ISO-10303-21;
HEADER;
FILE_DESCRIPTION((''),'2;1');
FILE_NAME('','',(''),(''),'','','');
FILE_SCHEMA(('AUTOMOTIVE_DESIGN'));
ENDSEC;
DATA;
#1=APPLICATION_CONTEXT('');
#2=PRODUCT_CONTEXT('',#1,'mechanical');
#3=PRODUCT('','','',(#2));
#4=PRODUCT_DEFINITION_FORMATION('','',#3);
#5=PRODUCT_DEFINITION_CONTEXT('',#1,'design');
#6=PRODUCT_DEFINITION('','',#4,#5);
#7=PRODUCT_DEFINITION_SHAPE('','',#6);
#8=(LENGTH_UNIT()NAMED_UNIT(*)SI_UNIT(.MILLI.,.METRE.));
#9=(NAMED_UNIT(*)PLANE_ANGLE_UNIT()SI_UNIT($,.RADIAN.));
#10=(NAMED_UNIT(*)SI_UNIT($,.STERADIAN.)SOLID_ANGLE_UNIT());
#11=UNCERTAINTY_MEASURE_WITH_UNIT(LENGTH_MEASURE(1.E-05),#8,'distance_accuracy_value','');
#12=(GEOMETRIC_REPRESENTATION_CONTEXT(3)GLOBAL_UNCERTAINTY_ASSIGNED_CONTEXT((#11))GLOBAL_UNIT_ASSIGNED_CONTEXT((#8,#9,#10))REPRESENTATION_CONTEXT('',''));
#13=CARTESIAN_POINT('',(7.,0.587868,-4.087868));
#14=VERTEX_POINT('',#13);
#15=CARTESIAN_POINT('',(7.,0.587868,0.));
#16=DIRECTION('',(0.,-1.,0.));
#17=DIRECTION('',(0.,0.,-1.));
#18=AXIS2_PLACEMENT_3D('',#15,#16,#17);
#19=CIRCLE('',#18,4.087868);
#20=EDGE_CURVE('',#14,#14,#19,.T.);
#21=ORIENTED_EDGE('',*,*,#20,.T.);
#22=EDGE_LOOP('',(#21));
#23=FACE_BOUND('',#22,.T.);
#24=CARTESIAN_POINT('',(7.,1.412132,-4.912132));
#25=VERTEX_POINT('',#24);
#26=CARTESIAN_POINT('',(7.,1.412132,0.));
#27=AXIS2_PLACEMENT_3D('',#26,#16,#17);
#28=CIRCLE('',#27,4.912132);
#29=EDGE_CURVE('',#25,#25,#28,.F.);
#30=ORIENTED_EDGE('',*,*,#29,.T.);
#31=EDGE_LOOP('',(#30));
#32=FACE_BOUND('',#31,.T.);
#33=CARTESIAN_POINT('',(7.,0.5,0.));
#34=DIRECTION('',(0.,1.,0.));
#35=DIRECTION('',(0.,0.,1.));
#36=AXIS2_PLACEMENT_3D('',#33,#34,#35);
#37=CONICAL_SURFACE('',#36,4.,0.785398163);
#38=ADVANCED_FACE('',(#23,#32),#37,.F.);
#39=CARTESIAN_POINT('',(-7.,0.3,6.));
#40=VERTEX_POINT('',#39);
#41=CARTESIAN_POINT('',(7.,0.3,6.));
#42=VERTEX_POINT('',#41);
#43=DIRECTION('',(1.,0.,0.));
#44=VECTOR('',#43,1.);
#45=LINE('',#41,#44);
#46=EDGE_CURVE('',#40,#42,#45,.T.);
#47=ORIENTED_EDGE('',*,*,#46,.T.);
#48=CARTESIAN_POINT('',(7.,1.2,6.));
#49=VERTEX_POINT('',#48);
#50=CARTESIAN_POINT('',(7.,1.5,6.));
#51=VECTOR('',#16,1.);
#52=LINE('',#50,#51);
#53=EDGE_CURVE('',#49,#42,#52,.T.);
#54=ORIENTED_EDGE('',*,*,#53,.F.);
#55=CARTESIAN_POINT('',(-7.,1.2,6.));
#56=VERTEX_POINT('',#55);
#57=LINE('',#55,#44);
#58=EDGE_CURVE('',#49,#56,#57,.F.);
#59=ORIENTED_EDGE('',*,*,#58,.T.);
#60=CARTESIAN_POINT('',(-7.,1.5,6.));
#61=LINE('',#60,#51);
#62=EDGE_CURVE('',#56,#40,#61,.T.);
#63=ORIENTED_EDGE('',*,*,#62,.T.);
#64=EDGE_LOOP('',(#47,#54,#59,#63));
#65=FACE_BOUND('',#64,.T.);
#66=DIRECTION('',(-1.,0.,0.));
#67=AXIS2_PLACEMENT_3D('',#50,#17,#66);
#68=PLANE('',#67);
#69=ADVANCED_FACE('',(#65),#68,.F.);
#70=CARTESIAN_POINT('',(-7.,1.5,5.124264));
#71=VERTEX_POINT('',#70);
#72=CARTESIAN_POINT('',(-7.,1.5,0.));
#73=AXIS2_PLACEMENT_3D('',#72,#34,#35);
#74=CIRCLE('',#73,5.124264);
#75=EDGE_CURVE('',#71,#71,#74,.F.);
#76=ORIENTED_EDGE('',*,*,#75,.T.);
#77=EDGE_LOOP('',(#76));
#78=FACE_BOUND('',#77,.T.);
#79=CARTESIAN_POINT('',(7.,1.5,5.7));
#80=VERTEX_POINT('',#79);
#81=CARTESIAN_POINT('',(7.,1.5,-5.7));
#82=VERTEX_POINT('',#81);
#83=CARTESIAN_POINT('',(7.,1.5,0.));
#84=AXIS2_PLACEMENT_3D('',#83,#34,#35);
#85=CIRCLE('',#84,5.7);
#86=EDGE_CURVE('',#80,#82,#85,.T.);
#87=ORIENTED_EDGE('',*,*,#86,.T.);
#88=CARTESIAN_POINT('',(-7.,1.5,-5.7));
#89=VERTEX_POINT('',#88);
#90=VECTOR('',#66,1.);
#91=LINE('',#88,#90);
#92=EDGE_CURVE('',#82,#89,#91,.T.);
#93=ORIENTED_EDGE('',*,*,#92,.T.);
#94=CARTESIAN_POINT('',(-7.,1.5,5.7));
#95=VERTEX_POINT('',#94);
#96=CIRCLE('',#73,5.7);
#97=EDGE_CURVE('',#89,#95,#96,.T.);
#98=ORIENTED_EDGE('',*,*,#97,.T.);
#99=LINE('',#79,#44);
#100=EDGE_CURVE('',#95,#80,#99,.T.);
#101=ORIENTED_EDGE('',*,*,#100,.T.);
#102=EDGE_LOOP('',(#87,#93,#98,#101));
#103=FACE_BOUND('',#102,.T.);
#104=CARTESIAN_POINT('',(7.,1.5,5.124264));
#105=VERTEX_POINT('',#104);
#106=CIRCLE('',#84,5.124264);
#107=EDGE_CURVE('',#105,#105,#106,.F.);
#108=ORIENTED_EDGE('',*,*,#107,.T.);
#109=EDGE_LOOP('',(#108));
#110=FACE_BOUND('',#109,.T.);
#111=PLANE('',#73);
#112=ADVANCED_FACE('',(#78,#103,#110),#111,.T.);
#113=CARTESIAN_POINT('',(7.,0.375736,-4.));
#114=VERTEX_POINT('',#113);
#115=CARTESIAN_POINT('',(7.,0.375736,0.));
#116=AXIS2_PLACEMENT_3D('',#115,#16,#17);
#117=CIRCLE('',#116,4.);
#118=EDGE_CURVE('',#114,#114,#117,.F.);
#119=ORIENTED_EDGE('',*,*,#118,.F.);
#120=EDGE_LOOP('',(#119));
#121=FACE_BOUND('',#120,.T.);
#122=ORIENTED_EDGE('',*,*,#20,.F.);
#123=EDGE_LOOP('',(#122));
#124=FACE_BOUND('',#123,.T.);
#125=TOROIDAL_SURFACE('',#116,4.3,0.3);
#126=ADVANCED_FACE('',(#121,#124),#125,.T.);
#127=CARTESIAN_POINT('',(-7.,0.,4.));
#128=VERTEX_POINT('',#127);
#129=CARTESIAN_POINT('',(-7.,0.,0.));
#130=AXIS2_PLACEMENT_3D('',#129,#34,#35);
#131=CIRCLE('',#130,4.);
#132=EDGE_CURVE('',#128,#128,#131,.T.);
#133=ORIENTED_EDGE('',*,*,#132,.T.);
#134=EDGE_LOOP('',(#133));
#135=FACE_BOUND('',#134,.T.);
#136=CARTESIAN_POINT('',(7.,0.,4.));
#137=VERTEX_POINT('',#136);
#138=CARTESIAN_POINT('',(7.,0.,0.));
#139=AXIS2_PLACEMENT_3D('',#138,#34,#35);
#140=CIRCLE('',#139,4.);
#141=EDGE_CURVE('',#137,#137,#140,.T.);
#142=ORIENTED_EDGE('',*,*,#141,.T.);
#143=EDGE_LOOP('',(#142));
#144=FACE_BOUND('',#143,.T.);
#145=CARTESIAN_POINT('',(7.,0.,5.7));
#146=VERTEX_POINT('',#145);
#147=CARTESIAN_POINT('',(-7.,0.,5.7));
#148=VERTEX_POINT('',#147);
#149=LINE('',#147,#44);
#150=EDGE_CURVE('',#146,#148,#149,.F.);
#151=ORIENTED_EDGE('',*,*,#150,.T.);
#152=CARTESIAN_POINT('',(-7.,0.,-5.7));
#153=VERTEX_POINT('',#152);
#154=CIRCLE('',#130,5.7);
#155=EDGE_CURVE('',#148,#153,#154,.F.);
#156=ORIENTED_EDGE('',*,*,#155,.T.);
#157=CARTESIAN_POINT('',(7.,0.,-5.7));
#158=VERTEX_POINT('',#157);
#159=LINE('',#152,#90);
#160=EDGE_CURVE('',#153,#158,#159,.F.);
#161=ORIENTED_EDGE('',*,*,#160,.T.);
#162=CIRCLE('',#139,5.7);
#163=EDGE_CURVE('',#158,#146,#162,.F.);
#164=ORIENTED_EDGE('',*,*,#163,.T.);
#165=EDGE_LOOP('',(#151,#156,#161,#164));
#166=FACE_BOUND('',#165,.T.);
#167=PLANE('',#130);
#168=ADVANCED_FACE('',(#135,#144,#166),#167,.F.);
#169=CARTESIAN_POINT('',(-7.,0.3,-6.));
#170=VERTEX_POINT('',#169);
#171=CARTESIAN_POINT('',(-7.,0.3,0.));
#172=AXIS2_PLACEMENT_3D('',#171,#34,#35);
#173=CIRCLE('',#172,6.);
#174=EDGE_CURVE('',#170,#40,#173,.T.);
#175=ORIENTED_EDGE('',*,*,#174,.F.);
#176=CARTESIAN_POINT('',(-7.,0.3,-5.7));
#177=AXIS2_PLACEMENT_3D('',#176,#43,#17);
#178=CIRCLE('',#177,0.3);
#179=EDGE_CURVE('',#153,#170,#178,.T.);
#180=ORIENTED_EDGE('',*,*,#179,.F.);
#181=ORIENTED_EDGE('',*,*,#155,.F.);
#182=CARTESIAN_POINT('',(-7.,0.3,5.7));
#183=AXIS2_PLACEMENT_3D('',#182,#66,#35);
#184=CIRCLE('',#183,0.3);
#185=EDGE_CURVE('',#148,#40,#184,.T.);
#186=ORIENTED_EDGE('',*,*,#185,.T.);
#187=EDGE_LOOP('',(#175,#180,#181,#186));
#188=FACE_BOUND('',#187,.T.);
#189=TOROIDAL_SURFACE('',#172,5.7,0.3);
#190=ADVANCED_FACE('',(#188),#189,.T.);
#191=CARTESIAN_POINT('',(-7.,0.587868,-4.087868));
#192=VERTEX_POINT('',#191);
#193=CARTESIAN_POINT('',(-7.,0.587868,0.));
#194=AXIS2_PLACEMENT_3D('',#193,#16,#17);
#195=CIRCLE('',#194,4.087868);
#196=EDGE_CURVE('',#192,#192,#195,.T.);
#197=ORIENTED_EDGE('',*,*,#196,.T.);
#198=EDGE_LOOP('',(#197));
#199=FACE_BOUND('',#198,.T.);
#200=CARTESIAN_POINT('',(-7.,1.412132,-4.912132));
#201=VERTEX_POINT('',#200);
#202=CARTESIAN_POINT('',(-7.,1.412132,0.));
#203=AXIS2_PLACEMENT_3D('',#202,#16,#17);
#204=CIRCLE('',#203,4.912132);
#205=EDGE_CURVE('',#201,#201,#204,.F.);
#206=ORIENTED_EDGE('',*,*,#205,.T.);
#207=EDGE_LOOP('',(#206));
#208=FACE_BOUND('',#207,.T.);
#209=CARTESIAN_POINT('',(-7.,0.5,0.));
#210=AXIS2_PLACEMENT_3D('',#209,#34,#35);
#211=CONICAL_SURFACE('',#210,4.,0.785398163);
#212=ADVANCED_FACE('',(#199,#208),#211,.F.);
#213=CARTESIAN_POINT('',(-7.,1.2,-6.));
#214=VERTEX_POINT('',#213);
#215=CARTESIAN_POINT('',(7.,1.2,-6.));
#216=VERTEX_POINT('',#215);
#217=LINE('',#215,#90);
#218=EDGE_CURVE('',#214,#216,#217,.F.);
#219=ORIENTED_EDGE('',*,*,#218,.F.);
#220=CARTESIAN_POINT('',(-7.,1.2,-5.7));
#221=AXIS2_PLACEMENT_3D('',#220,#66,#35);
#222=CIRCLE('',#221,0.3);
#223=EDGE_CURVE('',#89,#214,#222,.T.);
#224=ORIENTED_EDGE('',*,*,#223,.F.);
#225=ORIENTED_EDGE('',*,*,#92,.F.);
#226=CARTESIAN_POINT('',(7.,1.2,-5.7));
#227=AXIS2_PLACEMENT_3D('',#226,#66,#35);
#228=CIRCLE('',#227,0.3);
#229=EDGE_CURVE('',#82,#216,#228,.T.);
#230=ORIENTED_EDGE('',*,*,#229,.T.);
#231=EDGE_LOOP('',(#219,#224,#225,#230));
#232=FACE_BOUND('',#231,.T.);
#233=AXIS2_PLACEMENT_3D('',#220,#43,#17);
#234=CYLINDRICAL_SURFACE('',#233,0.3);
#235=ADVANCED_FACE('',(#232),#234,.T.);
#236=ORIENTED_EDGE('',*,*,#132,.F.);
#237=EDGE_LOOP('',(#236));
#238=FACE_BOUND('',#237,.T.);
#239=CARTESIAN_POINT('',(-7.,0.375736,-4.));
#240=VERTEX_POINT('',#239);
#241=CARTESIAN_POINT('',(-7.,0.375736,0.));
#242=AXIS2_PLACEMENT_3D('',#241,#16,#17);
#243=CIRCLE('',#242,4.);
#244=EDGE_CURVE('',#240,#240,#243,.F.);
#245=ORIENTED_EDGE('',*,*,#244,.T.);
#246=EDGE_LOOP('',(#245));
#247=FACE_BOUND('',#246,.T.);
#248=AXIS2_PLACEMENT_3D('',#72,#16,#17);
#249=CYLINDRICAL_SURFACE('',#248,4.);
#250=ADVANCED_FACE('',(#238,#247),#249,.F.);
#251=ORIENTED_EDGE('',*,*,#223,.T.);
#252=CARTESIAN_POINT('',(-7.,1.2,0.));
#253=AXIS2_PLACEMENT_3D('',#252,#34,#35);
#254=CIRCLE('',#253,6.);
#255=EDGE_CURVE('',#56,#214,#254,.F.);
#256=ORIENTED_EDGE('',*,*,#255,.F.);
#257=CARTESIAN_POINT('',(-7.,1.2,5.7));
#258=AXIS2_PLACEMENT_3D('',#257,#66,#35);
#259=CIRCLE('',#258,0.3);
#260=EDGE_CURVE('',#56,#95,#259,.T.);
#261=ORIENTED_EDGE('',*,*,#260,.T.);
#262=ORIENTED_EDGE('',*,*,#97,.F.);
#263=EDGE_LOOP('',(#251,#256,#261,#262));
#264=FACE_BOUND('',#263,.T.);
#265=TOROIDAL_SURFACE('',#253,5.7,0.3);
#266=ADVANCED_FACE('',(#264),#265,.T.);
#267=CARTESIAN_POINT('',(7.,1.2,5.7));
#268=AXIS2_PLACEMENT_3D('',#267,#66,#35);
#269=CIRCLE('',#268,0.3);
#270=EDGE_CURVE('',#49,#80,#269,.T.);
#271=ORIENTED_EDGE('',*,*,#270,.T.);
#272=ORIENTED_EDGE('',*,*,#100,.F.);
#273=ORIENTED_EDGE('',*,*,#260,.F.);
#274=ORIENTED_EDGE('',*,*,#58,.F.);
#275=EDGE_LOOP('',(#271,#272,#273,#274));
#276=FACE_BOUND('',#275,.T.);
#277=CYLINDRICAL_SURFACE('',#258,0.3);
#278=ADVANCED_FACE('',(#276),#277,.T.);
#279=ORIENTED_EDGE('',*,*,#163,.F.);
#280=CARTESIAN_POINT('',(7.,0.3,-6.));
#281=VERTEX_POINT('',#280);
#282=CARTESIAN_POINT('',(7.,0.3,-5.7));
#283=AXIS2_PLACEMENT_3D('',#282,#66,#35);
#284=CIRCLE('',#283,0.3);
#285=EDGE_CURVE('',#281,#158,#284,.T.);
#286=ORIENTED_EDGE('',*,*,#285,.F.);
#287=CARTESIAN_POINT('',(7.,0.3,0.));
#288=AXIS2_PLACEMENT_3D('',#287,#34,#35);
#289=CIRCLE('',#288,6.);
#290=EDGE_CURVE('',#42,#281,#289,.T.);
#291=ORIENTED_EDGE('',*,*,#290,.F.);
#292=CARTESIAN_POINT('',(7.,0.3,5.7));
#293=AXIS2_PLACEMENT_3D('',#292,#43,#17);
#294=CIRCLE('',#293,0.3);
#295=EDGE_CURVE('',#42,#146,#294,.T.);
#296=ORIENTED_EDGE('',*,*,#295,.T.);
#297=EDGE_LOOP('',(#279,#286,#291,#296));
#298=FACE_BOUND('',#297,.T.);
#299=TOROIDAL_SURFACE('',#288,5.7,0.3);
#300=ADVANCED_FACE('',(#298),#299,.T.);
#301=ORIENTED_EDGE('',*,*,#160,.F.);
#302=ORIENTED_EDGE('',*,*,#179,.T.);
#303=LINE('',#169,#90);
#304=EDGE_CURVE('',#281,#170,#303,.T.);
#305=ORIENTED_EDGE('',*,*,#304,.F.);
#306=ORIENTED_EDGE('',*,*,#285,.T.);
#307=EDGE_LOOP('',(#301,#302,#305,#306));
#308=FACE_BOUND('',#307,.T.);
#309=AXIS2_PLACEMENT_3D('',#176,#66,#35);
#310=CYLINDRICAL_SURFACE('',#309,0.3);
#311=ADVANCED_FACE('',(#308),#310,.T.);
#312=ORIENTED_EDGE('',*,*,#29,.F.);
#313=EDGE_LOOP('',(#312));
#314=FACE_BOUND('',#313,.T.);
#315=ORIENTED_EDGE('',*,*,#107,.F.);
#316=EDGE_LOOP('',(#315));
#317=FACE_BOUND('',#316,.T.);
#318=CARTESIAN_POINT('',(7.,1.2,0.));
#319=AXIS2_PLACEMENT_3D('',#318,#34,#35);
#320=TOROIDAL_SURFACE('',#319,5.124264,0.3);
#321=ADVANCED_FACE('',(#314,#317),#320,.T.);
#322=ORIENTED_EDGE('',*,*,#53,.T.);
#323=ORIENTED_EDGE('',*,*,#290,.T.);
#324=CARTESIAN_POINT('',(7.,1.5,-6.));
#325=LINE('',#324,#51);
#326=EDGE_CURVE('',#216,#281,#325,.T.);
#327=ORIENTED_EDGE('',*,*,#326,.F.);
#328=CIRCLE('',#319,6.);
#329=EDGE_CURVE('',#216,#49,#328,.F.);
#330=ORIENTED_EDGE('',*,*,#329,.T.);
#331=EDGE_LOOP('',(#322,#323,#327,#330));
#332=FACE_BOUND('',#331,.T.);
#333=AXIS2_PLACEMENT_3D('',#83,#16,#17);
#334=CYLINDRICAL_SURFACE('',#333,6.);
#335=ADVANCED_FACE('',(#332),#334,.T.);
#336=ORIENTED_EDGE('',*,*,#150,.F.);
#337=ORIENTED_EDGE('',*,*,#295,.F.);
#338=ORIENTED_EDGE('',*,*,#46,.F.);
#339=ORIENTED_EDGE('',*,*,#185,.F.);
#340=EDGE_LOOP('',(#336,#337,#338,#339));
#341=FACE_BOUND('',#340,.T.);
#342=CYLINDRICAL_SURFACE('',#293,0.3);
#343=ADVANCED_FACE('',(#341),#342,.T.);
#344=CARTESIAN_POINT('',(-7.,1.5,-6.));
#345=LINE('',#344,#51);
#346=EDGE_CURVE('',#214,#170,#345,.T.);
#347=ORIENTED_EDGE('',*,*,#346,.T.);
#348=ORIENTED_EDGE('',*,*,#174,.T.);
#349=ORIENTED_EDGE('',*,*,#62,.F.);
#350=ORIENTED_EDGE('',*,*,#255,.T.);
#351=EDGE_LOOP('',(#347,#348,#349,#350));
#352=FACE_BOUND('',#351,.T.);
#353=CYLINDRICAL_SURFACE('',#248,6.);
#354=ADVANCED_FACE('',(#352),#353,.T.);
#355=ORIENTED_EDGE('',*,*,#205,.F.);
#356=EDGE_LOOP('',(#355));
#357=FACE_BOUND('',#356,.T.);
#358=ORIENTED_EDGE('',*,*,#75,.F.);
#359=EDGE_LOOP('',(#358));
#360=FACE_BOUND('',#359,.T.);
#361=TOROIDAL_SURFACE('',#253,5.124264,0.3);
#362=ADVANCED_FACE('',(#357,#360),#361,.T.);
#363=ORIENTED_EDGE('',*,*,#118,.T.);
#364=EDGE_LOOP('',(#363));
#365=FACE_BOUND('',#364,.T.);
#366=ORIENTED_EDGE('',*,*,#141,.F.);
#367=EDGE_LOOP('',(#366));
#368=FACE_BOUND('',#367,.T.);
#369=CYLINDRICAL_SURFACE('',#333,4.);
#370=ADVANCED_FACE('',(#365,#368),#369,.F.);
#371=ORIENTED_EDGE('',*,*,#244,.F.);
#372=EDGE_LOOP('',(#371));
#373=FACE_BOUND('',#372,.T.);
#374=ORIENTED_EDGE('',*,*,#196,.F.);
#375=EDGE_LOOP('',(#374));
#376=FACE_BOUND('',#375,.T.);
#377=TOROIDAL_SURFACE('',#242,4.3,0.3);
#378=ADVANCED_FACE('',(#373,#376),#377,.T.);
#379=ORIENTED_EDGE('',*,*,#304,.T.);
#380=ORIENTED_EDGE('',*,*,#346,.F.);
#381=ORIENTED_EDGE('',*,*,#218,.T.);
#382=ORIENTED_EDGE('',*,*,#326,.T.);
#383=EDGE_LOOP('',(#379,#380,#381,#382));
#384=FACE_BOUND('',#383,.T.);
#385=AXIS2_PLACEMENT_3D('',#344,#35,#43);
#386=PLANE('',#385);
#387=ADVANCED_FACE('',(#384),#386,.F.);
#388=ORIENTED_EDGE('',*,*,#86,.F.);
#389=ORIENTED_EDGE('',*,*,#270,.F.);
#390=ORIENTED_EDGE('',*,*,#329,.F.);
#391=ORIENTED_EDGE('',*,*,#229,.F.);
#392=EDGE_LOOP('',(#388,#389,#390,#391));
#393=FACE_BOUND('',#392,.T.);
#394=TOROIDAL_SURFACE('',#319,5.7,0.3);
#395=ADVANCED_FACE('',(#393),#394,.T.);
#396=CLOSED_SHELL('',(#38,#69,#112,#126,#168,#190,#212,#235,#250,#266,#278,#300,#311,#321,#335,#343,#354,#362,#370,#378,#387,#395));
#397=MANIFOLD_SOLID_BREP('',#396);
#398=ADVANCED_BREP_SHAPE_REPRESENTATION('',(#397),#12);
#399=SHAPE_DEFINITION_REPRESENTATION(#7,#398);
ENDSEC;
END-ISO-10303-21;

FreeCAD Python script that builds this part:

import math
import FreeCAD as App
import Part
import Sketcher

V = App.Vector
Q = App.Units.Quantity


def edges_at(feature, points):
    """Names of the edges that pass closest to the given points."""
    edges = feature.Shape.Edges
    near = lambda p: min(range(len(edges)), key=lambda i: edges[i].distToShape(Part.Vertex(*p))[0])
    return sorted({f"Edge{near(p) + 1}" for p in points})

doc = App.newDocument("Part")
body = doc.addObject("PartDesign::Body", "Body")

sketch1 = body.newObject("Sketcher::SketchObject", "Sketch")
sketch1.AttachmentSupport = (doc.getObject("XZ_Plane"), [""])
sketch1.MapMode = "FlatFace"
sketch1.addGeometry(Part.LineSegment(V(7, -6, 0), V(-7, -6, 0)), False)
sketch1.addGeometry(Part.ArcOfCircle(Part.Circle(V(-7, 0, 0), V(0, 0, 1), 6), math.radians(90), math.radians(270)), False)
sketch1.addGeometry(Part.LineSegment(V(-7, 6, 0), V(7, 6, 0)), False)
sketch1.addGeometry(Part.ArcOfCircle(Part.Circle(V(7, 0, 0), V(0, 0, 1), 6), math.radians(-90), math.radians(90)), False)
sketch1.addConstraint(Sketcher.Constraint("Tangent", 0, 2, 1, 2))
sketch1.addConstraint(Sketcher.Constraint("Tangent", 1, 1, 2, 1))
sketch1.addConstraint(Sketcher.Constraint("Tangent", 2, 2, 3, 2))
sketch1.addConstraint(Sketcher.Constraint("Tangent", 3, 1, 0, 1))
sketch1.addConstraint(Sketcher.Constraint("Horizontal", 0))
sketch1.addConstraint(Sketcher.Constraint("Horizontal", 2))
sketch1.addConstraint(Sketcher.Constraint("Symmetric", 1, 3, 3, 3, -1, 1))
sketch1.addConstraint(Sketcher.Constraint("Radius", 1, Q("6 mm")))
sketch1.addConstraint(Sketcher.Constraint("DistanceX", 0, 2, 0, 1, Q("14 mm")))
pad1 = body.newObject("PartDesign::Pad", "Pad")
pad1.Profile = sketch1
pad1.Length = 1.5
pad1.Reversed = True

sketch2 = body.newObject("Sketcher::SketchObject", "Sketch001")
sketch2.AttachmentSupport = (doc.getObject("XZ_Plane"), [""])
sketch2.MapMode = "FlatFace"
sketch2.addGeometry(Part.Circle(V(-7, 0, 0), V(0, 0, 1), 4), False)
sketch2.addGeometry(Part.Circle(V(7, 0, 0), V(0, 0, 1), 4), False)
sketch2.addConstraint(Sketcher.Constraint("Equal", 0, 1))
sketch2.addConstraint(Sketcher.Constraint("Symmetric", 0, 3, 1, 3, -1, 1))
sketch2.addConstraint(Sketcher.Constraint("PointOnObject", 0, 3, -1))
sketch2.addConstraint(Sketcher.Constraint("Diameter", 0, Q("8 mm")))
sketch2.addConstraint(Sketcher.Constraint("DistanceX", 0, 3, -1, 1, Q("7 mm")))
pocket1 = body.newObject("PartDesign::Pocket", "Pocket")
pocket1.Profile = sketch2
pocket1.Type = "ThroughAll"
doc.recompute()

chamfer = body.newObject("PartDesign::Chamfer", "Chamfer")
chamfer.Base = (pocket1, edges_at(pocket1, [(-7, 1.5, -4), (7, 1.5, -4)]))
chamfer.Size = 1
doc.recompute()

fillet = body.newObject("PartDesign::Fillet", "Fillet")
fillet.Base = (chamfer, edges_at(chamfer, [
    (13, 1.5, 0),
    (0, 1.5, -6),
    (-7, 0.5, -4),
    (7, 1.5, -5),
    (-7, 1.5, -5),
    (7, 0.5, -4),
    (-13, 1.5, 0),
    (0, 0, -6),
    (13, 0, 0),
    (0, 0, 6),
    (-13, 0, 0),
    (0, 1.5, 6),
]))
fillet.Radius = 0.3

doc.recompute()
